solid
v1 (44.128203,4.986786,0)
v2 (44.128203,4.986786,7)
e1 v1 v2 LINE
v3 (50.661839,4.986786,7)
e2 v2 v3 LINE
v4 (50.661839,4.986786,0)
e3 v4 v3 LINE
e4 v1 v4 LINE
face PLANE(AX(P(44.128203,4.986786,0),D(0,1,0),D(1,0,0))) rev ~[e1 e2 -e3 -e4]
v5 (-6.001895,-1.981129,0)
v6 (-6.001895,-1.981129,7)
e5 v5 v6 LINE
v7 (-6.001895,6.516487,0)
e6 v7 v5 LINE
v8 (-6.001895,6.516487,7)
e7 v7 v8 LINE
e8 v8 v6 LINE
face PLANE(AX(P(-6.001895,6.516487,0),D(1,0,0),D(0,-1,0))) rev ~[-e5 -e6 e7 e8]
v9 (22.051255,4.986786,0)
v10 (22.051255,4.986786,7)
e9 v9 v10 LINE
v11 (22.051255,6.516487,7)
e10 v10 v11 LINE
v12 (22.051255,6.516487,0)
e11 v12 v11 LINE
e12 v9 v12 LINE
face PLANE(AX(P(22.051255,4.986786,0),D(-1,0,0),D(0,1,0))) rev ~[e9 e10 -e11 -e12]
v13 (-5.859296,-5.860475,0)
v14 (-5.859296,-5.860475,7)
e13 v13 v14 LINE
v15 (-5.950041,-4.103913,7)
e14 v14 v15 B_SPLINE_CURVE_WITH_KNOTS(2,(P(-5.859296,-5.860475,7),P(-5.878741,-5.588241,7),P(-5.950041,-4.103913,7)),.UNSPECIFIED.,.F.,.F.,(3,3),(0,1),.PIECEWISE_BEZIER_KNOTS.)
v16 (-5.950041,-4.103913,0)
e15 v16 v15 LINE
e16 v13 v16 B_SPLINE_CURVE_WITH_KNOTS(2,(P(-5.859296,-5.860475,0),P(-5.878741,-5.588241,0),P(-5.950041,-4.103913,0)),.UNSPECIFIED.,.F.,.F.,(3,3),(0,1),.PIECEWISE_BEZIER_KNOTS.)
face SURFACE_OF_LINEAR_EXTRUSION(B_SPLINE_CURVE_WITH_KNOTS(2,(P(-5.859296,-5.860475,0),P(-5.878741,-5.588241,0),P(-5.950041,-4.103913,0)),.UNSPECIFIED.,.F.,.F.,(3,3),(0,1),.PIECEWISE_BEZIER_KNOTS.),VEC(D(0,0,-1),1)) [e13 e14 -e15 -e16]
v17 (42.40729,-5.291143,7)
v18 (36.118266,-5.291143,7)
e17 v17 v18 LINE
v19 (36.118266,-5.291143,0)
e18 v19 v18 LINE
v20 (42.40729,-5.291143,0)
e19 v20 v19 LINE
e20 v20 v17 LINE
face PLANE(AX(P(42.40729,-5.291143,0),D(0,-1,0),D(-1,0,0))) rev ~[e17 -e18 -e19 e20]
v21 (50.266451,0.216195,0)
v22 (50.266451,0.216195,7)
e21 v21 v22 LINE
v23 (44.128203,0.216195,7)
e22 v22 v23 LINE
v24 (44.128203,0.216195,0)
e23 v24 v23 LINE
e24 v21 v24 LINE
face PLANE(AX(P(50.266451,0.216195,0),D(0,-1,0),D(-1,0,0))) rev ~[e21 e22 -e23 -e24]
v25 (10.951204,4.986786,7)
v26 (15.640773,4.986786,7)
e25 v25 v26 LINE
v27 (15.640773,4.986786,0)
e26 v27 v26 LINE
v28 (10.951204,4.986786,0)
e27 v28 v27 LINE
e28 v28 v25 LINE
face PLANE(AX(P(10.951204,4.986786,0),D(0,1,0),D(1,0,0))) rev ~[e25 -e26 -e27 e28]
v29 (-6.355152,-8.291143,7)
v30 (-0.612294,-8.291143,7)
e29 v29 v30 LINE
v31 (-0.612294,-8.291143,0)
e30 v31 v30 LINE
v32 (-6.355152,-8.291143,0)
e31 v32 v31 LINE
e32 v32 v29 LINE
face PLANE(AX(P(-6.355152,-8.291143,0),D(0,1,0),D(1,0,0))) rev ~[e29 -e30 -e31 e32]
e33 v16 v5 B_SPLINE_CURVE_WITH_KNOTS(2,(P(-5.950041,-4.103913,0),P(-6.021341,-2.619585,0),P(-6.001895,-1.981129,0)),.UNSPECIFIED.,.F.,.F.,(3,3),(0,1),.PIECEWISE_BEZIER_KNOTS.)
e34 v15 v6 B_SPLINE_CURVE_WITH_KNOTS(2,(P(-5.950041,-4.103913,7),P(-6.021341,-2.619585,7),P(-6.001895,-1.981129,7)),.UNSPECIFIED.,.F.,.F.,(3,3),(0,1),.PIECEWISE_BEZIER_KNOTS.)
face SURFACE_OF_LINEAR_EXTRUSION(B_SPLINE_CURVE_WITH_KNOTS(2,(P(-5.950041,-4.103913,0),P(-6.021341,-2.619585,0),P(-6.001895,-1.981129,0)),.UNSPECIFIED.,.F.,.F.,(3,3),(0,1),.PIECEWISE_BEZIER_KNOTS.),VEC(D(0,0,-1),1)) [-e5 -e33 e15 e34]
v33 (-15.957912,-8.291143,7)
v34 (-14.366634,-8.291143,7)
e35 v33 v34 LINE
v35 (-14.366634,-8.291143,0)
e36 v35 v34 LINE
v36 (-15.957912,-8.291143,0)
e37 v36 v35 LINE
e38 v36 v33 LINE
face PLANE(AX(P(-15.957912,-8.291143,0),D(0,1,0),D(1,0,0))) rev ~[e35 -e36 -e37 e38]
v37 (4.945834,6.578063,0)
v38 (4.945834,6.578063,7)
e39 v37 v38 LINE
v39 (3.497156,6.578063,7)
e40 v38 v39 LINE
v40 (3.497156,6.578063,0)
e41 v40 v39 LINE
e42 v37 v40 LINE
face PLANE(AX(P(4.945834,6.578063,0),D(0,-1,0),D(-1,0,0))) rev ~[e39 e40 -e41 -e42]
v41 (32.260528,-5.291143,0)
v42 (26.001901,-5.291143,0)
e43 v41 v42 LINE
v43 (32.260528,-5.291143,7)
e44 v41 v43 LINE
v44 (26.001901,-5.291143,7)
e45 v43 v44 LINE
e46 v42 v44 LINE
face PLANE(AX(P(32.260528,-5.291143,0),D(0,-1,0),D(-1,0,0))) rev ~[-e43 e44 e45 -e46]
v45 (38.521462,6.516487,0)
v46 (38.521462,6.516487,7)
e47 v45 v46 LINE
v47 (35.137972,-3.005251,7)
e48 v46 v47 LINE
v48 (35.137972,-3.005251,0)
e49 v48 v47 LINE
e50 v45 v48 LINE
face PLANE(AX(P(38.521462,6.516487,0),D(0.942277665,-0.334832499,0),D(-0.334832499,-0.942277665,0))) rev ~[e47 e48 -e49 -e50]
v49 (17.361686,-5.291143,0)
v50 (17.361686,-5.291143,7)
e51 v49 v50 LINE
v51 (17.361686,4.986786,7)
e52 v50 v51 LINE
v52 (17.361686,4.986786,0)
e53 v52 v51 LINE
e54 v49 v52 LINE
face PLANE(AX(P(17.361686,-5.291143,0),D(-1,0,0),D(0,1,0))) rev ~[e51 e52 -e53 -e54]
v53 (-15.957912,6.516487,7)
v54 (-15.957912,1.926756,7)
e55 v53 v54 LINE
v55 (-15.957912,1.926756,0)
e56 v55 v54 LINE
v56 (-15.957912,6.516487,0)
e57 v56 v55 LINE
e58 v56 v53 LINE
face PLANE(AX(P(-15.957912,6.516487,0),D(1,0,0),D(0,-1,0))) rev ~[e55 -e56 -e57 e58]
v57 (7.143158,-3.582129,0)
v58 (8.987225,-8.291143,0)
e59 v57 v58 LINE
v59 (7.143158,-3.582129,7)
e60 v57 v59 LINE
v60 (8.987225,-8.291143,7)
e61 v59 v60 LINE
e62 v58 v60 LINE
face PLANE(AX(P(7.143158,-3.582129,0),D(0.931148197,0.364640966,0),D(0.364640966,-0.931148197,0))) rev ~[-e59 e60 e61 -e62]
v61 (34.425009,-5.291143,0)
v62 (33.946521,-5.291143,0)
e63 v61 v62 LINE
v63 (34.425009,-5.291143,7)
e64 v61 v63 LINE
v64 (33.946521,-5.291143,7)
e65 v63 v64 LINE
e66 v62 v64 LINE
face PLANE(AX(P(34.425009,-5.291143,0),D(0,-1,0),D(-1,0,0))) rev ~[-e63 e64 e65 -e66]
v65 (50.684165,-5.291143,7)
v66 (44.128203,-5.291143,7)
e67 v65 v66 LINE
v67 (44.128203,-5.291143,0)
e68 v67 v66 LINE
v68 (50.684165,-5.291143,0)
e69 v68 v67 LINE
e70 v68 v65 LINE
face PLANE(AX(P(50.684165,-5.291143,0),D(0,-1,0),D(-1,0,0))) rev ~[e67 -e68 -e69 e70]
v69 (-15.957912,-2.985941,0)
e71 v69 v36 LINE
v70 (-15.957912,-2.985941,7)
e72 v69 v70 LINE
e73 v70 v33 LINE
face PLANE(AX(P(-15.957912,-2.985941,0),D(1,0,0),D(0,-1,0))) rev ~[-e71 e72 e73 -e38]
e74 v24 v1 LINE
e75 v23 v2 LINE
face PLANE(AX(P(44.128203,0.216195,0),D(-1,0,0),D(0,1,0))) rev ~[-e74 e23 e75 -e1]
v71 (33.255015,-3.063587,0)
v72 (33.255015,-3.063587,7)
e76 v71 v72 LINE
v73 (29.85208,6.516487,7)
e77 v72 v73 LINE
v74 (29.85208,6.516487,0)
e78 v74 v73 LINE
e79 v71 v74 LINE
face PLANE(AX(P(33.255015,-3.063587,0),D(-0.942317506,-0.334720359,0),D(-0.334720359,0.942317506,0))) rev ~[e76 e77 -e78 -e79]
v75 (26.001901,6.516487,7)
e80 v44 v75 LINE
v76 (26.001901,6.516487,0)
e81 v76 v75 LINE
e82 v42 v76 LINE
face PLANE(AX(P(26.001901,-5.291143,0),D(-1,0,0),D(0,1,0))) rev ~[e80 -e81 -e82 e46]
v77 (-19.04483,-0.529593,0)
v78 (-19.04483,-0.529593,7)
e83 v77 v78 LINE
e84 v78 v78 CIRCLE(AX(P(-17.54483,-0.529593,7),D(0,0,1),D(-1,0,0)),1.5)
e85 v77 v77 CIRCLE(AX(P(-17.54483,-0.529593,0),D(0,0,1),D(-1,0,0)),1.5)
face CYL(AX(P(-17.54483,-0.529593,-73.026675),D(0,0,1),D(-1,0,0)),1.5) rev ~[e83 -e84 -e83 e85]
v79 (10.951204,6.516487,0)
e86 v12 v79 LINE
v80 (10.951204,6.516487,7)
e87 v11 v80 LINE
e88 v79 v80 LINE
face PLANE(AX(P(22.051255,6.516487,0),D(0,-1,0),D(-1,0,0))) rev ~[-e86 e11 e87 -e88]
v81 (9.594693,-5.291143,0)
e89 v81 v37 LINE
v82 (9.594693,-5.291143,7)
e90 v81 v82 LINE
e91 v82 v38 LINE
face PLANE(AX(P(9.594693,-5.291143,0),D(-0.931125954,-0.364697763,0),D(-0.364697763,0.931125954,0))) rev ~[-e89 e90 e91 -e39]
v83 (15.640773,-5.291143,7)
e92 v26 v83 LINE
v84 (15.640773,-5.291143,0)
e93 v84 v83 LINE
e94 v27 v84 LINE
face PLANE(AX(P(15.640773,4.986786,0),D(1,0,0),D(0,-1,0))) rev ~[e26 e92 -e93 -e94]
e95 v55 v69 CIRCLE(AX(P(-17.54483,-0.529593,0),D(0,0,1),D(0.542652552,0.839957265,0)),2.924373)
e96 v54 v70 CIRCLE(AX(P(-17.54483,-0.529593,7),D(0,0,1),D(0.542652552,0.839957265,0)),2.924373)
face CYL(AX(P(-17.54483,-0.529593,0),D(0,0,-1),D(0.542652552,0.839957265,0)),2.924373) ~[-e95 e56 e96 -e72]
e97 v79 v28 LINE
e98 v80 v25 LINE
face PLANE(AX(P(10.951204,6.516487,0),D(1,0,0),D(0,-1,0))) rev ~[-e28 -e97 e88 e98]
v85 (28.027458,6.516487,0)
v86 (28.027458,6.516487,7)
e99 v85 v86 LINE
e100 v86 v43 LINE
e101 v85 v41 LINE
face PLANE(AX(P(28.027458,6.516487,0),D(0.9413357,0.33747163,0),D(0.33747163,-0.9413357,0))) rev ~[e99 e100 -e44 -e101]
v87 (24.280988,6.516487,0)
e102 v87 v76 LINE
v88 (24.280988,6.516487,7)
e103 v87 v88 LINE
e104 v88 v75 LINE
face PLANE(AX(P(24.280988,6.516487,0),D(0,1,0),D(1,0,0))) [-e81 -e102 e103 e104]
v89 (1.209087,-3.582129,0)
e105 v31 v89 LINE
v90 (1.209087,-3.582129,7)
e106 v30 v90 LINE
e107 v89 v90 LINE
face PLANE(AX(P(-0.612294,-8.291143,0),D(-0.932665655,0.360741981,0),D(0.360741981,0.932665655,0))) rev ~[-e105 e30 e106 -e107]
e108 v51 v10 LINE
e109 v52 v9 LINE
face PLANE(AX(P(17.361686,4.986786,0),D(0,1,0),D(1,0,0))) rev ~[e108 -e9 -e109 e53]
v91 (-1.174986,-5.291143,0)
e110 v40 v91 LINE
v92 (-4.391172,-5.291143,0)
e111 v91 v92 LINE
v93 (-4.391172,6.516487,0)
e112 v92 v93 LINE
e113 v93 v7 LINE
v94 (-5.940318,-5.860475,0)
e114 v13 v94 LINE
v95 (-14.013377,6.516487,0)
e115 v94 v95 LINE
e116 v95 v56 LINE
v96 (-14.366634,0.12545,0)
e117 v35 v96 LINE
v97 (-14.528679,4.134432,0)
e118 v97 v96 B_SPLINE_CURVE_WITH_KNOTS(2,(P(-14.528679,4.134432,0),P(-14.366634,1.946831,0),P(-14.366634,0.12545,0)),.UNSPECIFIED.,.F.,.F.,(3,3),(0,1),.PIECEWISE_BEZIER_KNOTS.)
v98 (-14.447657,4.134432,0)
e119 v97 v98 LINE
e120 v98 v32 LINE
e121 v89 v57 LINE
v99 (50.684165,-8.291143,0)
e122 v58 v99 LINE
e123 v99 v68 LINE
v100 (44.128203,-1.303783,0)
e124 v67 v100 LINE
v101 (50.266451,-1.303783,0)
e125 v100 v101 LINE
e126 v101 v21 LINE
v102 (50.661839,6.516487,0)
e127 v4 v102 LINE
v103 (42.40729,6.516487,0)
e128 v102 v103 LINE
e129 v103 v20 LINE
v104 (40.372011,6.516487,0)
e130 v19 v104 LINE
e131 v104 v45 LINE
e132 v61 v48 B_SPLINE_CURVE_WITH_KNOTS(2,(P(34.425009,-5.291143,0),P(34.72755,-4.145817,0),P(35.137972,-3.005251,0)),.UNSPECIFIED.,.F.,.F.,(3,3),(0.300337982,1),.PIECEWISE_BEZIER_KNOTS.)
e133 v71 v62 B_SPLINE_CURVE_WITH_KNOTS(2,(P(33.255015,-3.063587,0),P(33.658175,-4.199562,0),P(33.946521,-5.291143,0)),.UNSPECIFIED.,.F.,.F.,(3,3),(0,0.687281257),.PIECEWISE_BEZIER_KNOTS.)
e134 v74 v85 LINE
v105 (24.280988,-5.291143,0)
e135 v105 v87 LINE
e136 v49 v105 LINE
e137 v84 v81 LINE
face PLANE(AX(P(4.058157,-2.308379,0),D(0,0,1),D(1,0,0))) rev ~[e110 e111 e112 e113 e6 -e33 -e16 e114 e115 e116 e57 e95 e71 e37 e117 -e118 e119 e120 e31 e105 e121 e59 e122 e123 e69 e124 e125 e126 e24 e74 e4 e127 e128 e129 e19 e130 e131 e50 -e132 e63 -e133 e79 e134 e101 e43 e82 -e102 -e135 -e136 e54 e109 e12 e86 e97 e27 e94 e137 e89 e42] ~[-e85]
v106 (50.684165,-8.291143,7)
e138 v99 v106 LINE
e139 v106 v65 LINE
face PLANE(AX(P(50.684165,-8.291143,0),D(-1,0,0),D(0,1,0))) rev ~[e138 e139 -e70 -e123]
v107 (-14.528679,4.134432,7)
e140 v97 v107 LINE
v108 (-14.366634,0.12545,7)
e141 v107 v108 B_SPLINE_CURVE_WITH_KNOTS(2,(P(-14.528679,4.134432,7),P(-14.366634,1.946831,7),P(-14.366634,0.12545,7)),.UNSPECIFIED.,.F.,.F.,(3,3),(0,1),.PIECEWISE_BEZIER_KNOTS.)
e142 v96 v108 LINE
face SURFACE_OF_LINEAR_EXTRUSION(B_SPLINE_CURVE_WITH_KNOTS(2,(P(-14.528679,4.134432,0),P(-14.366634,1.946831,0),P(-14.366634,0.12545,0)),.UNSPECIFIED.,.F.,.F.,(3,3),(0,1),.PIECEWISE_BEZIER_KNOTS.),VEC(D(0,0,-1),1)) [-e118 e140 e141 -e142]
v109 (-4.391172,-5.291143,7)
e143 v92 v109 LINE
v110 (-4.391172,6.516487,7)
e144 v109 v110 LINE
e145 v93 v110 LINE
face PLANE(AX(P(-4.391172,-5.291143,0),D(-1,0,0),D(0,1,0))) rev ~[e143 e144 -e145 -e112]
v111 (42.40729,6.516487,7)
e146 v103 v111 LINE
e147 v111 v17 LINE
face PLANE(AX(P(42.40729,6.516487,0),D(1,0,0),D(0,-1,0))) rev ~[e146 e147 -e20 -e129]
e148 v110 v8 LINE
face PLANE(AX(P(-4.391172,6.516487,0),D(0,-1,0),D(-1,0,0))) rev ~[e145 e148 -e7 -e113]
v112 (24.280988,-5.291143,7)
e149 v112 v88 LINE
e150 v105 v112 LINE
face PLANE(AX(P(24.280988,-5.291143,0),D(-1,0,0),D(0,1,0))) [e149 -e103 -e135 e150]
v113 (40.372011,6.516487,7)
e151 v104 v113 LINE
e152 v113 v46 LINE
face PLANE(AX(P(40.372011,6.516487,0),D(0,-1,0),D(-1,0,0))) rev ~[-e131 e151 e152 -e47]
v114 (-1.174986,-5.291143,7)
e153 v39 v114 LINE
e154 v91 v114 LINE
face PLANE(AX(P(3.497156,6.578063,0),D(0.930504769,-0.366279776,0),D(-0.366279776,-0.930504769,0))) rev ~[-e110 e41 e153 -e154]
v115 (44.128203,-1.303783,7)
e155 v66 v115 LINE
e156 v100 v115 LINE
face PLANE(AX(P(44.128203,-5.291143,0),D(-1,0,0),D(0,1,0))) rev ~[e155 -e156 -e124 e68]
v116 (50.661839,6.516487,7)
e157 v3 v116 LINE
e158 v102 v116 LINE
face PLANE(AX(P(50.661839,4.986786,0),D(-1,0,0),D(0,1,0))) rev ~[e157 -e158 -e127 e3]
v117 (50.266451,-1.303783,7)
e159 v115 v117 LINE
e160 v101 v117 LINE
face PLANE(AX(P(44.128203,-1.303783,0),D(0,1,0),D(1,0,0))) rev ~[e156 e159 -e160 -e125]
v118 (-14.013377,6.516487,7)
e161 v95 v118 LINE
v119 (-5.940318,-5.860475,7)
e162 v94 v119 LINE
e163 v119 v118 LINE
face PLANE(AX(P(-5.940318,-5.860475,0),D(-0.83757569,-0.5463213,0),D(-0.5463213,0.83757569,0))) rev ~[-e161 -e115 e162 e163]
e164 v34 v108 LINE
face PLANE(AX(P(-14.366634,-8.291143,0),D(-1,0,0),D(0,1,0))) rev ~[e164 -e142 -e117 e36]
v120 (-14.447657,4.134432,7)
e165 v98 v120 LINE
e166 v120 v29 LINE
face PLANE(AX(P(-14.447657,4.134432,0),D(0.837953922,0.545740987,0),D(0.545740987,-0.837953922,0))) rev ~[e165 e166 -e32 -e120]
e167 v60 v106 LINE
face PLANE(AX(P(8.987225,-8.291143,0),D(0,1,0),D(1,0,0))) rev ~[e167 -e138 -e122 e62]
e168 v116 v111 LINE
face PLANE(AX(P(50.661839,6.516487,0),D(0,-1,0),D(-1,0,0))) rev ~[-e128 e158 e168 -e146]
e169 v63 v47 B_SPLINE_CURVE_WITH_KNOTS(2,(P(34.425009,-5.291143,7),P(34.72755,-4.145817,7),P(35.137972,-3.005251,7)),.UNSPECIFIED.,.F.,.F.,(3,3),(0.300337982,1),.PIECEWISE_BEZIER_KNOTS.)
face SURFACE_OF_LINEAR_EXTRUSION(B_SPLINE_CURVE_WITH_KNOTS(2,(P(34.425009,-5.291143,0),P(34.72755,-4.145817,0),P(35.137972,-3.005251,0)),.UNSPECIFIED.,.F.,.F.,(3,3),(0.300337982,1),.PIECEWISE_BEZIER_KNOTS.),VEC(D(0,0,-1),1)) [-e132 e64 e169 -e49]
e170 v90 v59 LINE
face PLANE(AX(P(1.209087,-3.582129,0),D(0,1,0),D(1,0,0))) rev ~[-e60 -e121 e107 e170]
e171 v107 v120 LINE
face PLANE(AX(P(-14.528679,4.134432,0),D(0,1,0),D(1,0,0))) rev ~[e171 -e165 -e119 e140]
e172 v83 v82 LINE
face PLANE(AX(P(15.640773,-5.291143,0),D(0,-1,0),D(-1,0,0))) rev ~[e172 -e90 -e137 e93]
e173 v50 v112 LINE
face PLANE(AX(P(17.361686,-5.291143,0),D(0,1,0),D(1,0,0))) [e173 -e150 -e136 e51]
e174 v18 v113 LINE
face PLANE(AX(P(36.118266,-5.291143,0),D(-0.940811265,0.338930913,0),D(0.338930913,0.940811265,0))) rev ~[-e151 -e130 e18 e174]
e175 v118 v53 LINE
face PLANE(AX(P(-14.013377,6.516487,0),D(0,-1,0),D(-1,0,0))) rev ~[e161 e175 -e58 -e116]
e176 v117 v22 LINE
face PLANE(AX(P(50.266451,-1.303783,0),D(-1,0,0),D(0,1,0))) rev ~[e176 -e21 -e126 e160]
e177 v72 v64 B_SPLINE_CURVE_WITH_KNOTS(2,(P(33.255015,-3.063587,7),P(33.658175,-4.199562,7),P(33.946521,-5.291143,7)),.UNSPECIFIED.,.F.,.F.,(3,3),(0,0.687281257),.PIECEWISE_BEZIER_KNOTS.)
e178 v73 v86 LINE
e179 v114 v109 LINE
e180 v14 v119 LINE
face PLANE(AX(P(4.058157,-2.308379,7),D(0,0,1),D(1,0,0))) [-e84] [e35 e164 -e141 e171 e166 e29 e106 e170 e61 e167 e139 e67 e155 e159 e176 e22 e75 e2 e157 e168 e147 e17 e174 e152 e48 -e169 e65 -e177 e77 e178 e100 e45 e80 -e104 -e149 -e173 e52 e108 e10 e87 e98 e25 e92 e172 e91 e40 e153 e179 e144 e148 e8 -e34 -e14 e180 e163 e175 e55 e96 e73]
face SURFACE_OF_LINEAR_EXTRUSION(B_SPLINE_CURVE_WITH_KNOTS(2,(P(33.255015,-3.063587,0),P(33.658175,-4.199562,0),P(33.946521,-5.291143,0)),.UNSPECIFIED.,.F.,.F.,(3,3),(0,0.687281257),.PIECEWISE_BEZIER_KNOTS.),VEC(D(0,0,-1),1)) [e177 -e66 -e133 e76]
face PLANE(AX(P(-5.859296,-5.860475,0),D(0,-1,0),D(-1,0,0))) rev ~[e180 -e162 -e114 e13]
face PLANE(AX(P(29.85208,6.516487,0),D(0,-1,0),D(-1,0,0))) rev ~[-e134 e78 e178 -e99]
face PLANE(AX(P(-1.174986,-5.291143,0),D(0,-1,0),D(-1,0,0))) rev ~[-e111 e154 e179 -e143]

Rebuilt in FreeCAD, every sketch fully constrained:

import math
import FreeCAD as App
import Part
import Sketcher
from FreeCAD import Vector
Q = App.Units.Quantity

doc = App.newDocument("Part")
body = doc.addObject("PartDesign::Body", "Body")

# Sketch on XY plane
sketch1 = doc.addObject("Sketcher::SketchObject", "Sketch")
body.addObject(sketch1)
sketch1.AttachmentSupport = (doc.XY_Plane, [""])
sketch1.MapMode = "FlatFace"
sketch1.addGeometry([
    Part.LineSegment(Vector(-0.612294, -8.291143, 0), Vector(1.209087, -3.582129, 0)),  # 0
    Part.LineSegment(Vector(1.209087, -3.582129, 0), Vector(7.143158, -3.582129, 0)),  # 1
    Part.LineSegment(Vector(7.143158, -3.582129, 0), Vector(8.987225, -8.291143, 0)),  # 2
    Part.LineSegment(Vector(8.987225, -8.291143, 0), Vector(50.684165, -8.291143, 0)),  # 3
    Part.LineSegment(Vector(50.684165, -8.291143, 0), Vector(50.684165, -5.291143, 0)),  # 4
    Part.LineSegment(Vector(50.684165, -5.291143, 0), Vector(44.128203, -5.291143, 0)),  # 5
    Part.LineSegment(Vector(44.128203, -5.291143, 0), Vector(44.128203, -1.303783, 0)),  # 6
    Part.LineSegment(Vector(44.128203, -1.303783, 0), Vector(50.266451, -1.303783, 0)),  # 7
    Part.LineSegment(Vector(50.266451, -1.303783, 0), Vector(50.266451, 0.216195, 0)),  # 8
    Part.LineSegment(Vector(50.266451, 0.216195, 0), Vector(44.128203, 0.216195, 0)),  # 9
    Part.LineSegment(Vector(44.128203, 0.216195, 0), Vector(44.128203, 4.986786, 0)),  # 10
    Part.LineSegment(Vector(44.128203, 4.986786, 0), Vector(50.661839, 4.986786, 0)),  # 11
    Part.LineSegment(Vector(50.661839, 4.986786, 0), Vector(50.661839, 6.516487, 0)),  # 12
    Part.LineSegment(Vector(50.661839, 6.516487, 0), Vector(42.40729, 6.516487, 0)),  # 13
    Part.LineSegment(Vector(42.40729, 6.516487, 0), Vector(42.40729, -5.291143, 0)),  # 14
    Part.LineSegment(Vector(42.40729, -5.291143, 0), Vector(36.118266, -5.291143, 0)),  # 15
    Part.LineSegment(Vector(36.118266, -5.291143, 0), Vector(40.372011, 6.516487, 0)),  # 16
    Part.LineSegment(Vector(40.372011, 6.516487, 0), Vector(38.521462, 6.516487, 0)),  # 17
    Part.LineSegment(Vector(38.521462, 6.516487, 0), Vector(35.137972, -3.005251, 0)),  # 18
    Part.BSplineCurve([Vector(34.425009, -5.291143, 0), Vector(34.72755, -4.145817, 0), Vector(35.137972, -3.005251, 0)], [3, 3], [0.300337982, 1], False, 2, [1, 1, 1], False),  # 19
    Part.LineSegment(Vector(34.425009, -5.291143, 0), Vector(33.946521, -5.291143, 0)),  # 20
    Part.BSplineCurve([Vector(33.255015, -3.063587, 0), Vector(33.658175, -4.199562, 0), Vector(33.946521, -5.291143, 0)], [3, 3], [0, 0.687281257], False, 2, [1, 1, 1], False),  # 21
    Part.LineSegment(Vector(33.255015, -3.063587, 0), Vector(29.85208, 6.516487, 0)),  # 22
    Part.LineSegment(Vector(29.85208, 6.516487, 0), Vector(28.027458, 6.516487, 0)),  # 23
    Part.LineSegment(Vector(28.027458, 6.516487, 0), Vector(32.260528, -5.291143, 0)),  # 24
    Part.LineSegment(Vector(32.260528, -5.291143, 0), Vector(26.001901, -5.291143, 0)),  # 25
    Part.LineSegment(Vector(26.001901, -5.291143, 0), Vector(26.001901, 6.516487, 0)),  # 26
    Part.LineSegment(Vector(26.001901, 6.516487, 0), Vector(24.280988, 6.516487, 0)),  # 27
    Part.LineSegment(Vector(24.280988, 6.516487, 0), Vector(24.280988, -5.291143, 0)),  # 28
    Part.LineSegment(Vector(24.280988, -5.291143, 0), Vector(17.361686, -5.291143, 0)),  # 29
    Part.LineSegment(Vector(17.361686, -5.291143, 0), Vector(17.361686, 4.986786, 0)),  # 30
    Part.LineSegment(Vector(17.361686, 4.986786, 0), Vector(22.051255, 4.986786, 0)),  # 31
    Part.LineSegment(Vector(22.051255, 4.986786, 0), Vector(22.051255, 6.516487, 0)),  # 32
    Part.LineSegment(Vector(22.051255, 6.516487, 0), Vector(10.951204, 6.516487, 0)),  # 33
    Part.LineSegment(Vector(10.951204, 6.516487, 0), Vector(10.951204, 4.986786, 0)),  # 34
    Part.LineSegment(Vector(10.951204, 4.986786, 0), Vector(15.640773, 4.986786, 0)),  # 35
    Part.LineSegment(Vector(15.640773, 4.986786, 0), Vector(15.640773, -5.291143, 0)),  # 36
    Part.LineSegment(Vector(15.640773, -5.291143, 0), Vector(9.594693, -5.291143, 0)),  # 37
    Part.LineSegment(Vector(9.594693, -5.291143, 0), Vector(4.945834, 6.578063, 0)),  # 38
    Part.LineSegment(Vector(4.945834, 6.578063, 0), Vector(3.497156, 6.578063, 0)),  # 39
    Part.LineSegment(Vector(3.497156, 6.578063, 0), Vector(-1.174986, -5.291143, 0)),  # 40
    Part.LineSegment(Vector(-1.174986, -5.291143, 0), Vector(-4.391172, -5.291143, 0)),  # 41
    Part.LineSegment(Vector(-4.391172, -5.291143, 0), Vector(-4.391172, 6.516487, 0)),  # 42
    Part.LineSegment(Vector(-4.391172, 6.516487, 0), Vector(-6.001895, 6.516487, 0)),  # 43
    Part.LineSegment(Vector(-6.001895, 6.516487, 0), Vector(-6.001895, -1.981129, 0)),  # 44
    Part.BSplineCurve([Vector(-5.950041, -4.103913, 0), Vector(-6.021341, -2.619585, 0), Vector(-6.001895, -1.981129, 0)], [3, 3], [0, 1], False, 2, [1, 1, 1], False),  # 45
    Part.BSplineCurve([Vector(-5.859296, -5.860475, 0), Vector(-5.878741, -5.588241, 0), Vector(-5.950041, -4.103913, 0)], [3, 3], [0, 1], False, 2, [1, 1, 1], False),  # 46
    Part.LineSegment(Vector(-5.859296, -5.860475, 0), Vector(-5.940318, -5.860475, 0)),  # 47
    Part.LineSegment(Vector(-5.940318, -5.860475, 0), Vector(-14.013377, 6.516487, 0)),  # 48
    Part.LineSegment(Vector(-14.013377, 6.516487, 0), Vector(-15.957912, 6.516487, 0)),  # 49
    Part.LineSegment(Vector(-15.957912, 6.516487, 0), Vector(-15.957912, 1.926756, 0)),  # 50
    Part.ArcOfCircle(Part.Circle(Vector(-17.54483, -0.529593, 0), Vector(0, 0, 1), 2.924373), math.radians(57.135607), math.radians(302.864393)),  # 51
    Part.LineSegment(Vector(-15.957912, -2.985941, 0), Vector(-15.957912, -8.291143, 0)),  # 52
    Part.LineSegment(Vector(-15.957912, -8.291143, 0), Vector(-14.366634, -8.291143, 0)),  # 53
    Part.LineSegment(Vector(-14.366634, -8.291143, 0), Vector(-14.366634, 0.12545, 0)),  # 54
    Part.BSplineCurve([Vector(-14.528679, 4.134432, 0), Vector(-14.366634, 1.946831, 0), Vector(-14.366634, 0.12545, 0)], [3, 3], [0, 1], False, 2, [1, 1, 1], False),  # 55
    Part.LineSegment(Vector(-14.528679, 4.134432, 0), Vector(-14.447657, 4.134432, 0)),  # 56
    Part.LineSegment(Vector(-14.447657, 4.134432, 0), Vector(-6.355152, -8.291143, 0)),  # 57
    Part.LineSegment(Vector(-6.355152, -8.291143, 0), Vector(-0.612294, -8.291143, 0)),  # 58
], False)
sketch1.addConstraint([
    Sketcher.Constraint("Block", 19),
    Sketcher.Constraint("Block", 21),
    Sketcher.Constraint("Block", 45),
    Sketcher.Constraint("Block", 46),
    Sketcher.Constraint("Block", 55),
    Sketcher.Constraint("Coincident", 0, 2, 1, 1),
    Sketcher.Constraint("Coincident", 1, 2, 2, 1),
    Sketcher.Constraint("Coincident", 2, 2, 3, 1),
    Sketcher.Constraint("Coincident", 3, 2, 4, 1),
    Sketcher.Constraint("Coincident", 4, 2, 5, 1),
    Sketcher.Constraint("Coincident", 5, 2, 6, 1),
    Sketcher.Constraint("Coincident", 6, 2, 7, 1),
    Sketcher.Constraint("Coincident", 7, 2, 8, 1),
    Sketcher.Constraint("Coincident", 8, 2, 9, 1),
    Sketcher.Constraint("Coincident", 9, 2, 10, 1),
    Sketcher.Constraint("Coincident", 10, 2, 11, 1),
    Sketcher.Constraint("Coincident", 11, 2, 12, 1),
    Sketcher.Constraint("Coincident", 12, 2, 13, 1),
    Sketcher.Constraint("Coincident", 13, 2, 14, 1),
    Sketcher.Constraint("Coincident", 14, 2, 15, 1),
    Sketcher.Constraint("Coincident", 15, 2, 16, 1),
    Sketcher.Constraint("Coincident", 16, 2, 17, 1),
    Sketcher.Constraint("Coincident", 17, 2, 18, 1),
    Sketcher.Constraint("Coincident", 18, 2, 19, 2),
    Sketcher.Constraint("Coincident", 19, 1, 20, 1),
    Sketcher.Constraint("Coincident", 20, 2, 21, 2),
    Sketcher.Constraint("Coincident", 21, 1, 22, 1),
    Sketcher.Constraint("Coincident", 22, 2, 23, 1),
    Sketcher.Constraint("Coincident", 23, 2, 24, 1),
    Sketcher.Constraint("Coincident", 24, 2, 25, 1),
    Sketcher.Constraint("Coincident", 25, 2, 26, 1),
    Sketcher.Constraint("Coincident", 26, 2, 27, 1),
    Sketcher.Constraint("Coincident", 27, 2, 28, 1),
    Sketcher.Constraint("Coincident", 28, 2, 29, 1),
    Sketcher.Constraint("Coincident", 29, 2, 30, 1),
    Sketcher.Constraint("Coincident", 30, 2, 31, 1),
    Sketcher.Constraint("Coincident", 31, 2, 32, 1),
    Sketcher.Constraint("Coincident", 32, 2, 33, 1),
    Sketcher.Constraint("Coincident", 33, 2, 34, 1),
    Sketcher.Constraint("Coincident", 34, 2, 35, 1),
    Sketcher.Constraint("Coincident", 35, 2, 36, 1),
    Sketcher.Constraint("Coincident", 36, 2, 37, 1),
    Sketcher.Constraint("Coincident", 37, 2, 38, 1),
    Sketcher.Constraint("Coincident", 38, 2, 39, 1),
    Sketcher.Constraint("Coincident", 39, 2, 40, 1),
    Sketcher.Constraint("Coincident", 40, 2, 41, 1),
    Sketcher.Constraint("Coincident", 41, 2, 42, 1),
    Sketcher.Constraint("Coincident", 42, 2, 43, 1),
    Sketcher.Constraint("Coincident", 43, 2, 44, 1),
    Sketcher.Constraint("Coincident", 44, 2, 45, 2),
    Sketcher.Constraint("Coincident", 46, 1, 47, 1),
    Sketcher.Constraint("Coincident", 47, 2, 48, 1),
    Sketcher.Constraint("Coincident", 48, 2, 49, 1),
    Sketcher.Constraint("Coincident", 49, 2, 50, 1),
    Sketcher.Constraint("Coincident", 50, 2, 51, 1),
    Sketcher.Constraint("Coincident", 51, 2, 52, 1),
    Sketcher.Constraint("Coincident", 52, 2, 53, 1),
    Sketcher.Constraint("Coincident", 53, 2, 54, 1),
    Sketcher.Constraint("Coincident", 54, 2, 55, 2),
    Sketcher.Constraint("Coincident", 55, 1, 56, 1),
    Sketcher.Constraint("Coincident", 56, 2, 57, 1),
    Sketcher.Constraint("Coincident", 57, 2, 58, 1),
    Sketcher.Constraint("Coincident", 58, 2, 0, 1),
    Sketcher.Constraint("Horizontal", 1),
    Sketcher.Constraint("Horizontal", 3),
    Sketcher.Constraint("Vertical", 4),
    Sketcher.Constraint("Horizontal", 5),
    Sketcher.Constraint("Vertical", 6),
    Sketcher.Constraint("Horizontal", 7),
    Sketcher.Constraint("Vertical", 8),
    Sketcher.Constraint("Horizontal", 9),
    Sketcher.Constraint("Vertical", 10),
    Sketcher.Constraint("Horizontal", 11),
    Sketcher.Constraint("Vertical", 12),
    Sketcher.Constraint("Horizontal", 13),
    Sketcher.Constraint("Vertical", 14),
    Sketcher.Constraint("Horizontal", 15),
    Sketcher.Constraint("Horizontal", 17),
    Sketcher.Constraint("Horizontal", 23),
    Sketcher.Constraint("Horizontal", 25),
    Sketcher.Constraint("Vertical", 26),
    Sketcher.Constraint("Horizontal", 27),
    Sketcher.Constraint("Vertical", 28),
    Sketcher.Constraint("Horizontal", 29),
    Sketcher.Constraint("Vertical", 30),
    Sketcher.Constraint("Horizontal", 31),
    Sketcher.Constraint("Vertical", 32),
    Sketcher.Constraint("Horizontal", 33),
    Sketcher.Constraint("Vertical", 34),
    Sketcher.Constraint("Horizontal", 35),
    Sketcher.Constraint("Vertical", 36),
    Sketcher.Constraint("Horizontal", 37),
    Sketcher.Constraint("Horizontal", 39),
    Sketcher.Constraint("Horizontal", 41),
    Sketcher.Constraint("Vertical", 42),
    Sketcher.Constraint("Horizontal", 43),
    Sketcher.Constraint("Vertical", 44),
    Sketcher.Constraint("Horizontal", 47),
    Sketcher.Constraint("Horizontal", 49),
    Sketcher.Constraint("Vertical", 50),
    Sketcher.Constraint("Vertical", 52),
    Sketcher.Constraint("Horizontal", 53),
    Sketcher.Constraint("Vertical", 54),
    Sketcher.Constraint("Horizontal", 56),
    Sketcher.Constraint("Horizontal", 58),
    Sketcher.Constraint("Horizontal", 5, 2, 14, 2),
    Sketcher.Constraint("Horizontal", 13, 2, 16, 2),
    Sketcher.Constraint("Horizontal", 15, 2, 20, 2),
    Sketcher.Constraint("Horizontal", 17, 2, 22, 2),
    Sketcher.Constraint("Horizontal", 20, 2, 24, 2),
    Sketcher.Constraint("Horizontal", 23, 2, 26, 2),
    Sketcher.Constraint("Horizontal", 25, 2, 28, 2),
    Sketcher.Constraint("Horizontal", 11, 2, 30, 2),
    Sketcher.Constraint("Horizontal", 27, 2, 32, 2),
    Sketcher.Constraint("Horizontal", 31, 2, 34, 2),
    Sketcher.Constraint("Horizontal", 29, 2, 36, 2),
    Sketcher.Constraint("Horizontal", 37, 2, 40, 2),
    Sketcher.Constraint("Horizontal", 33, 2, 42, 2),
    Sketcher.Constraint("Horizontal", 43, 2, 48, 2),
    Sketcher.Constraint("Horizontal", 3, 2, 52, 2),
    Sketcher.Constraint("Horizontal", 53, 2, 57, 2),
    Sketcher.Constraint("Vertical", 6, 2, 9, 2),
    Sketcher.Constraint("Vertical", 50, 2, 51, 2),
    Sketcher.Constraint("Equal", 31, 35),
    Sketcher.Constraint("Equal", 47, 56),
    Sketcher.Constraint("DistanceY", 4, 1, 4, 2, Q("3 mm")),
    Sketcher.Constraint("DistanceX", 29, 2, 29, 1, Q("6.919302 mm")),
    Sketcher.Constraint("DistanceY", 12, 1, 12, 2, Q("1.5297 mm")),
    Sketcher.Constraint("Radius", 51, Q("2.924373 mm")),
    Sketcher.Constraint("DistanceY", 0, 2, 44, 2, Q("1.601 mm")),
    Sketcher.Constraint("DistanceX", 1, 1, 1, 2, Q("5.934071 mm")),
    Sketcher.Constraint("DistanceX", 3, 1, 3, 2, Q("41.696941 mm")),
    Sketcher.Constraint("DistanceX", 5, 2, 5, 1, Q("6.555962 mm")),
    Sketcher.Constraint("DistanceX", 13, 2, 13, 1, Q("8.254549 mm")),
    Sketcher.Constraint("DistanceX", 17, 2, 17, 1, Q("1.850549 mm")),
    Sketcher.Constraint("DistanceX", 23, 2, 23, 1, Q("1.824622 mm")),
    Sketcher.Constraint("DistanceX", 31, 1, 31, 2, Q("4.689569 mm")),
    Sketcher.Constraint("DistanceX", 33, 2, 33, 1, Q("11.100051 mm")),
    Sketcher.Constraint("DistanceX", 37, 2, 37, 1, Q("6.046081 mm")),
    Sketcher.Constraint("DistanceX", 39, 2, 39, 1, Q("1.448678 mm")),
    Sketcher.Constraint("DistanceX", 58, 1, 58, 2, Q("5.742858 mm")),
    Sketcher.Constraint("DistanceY", 6, 1, 6, 2, Q("3.987361 mm")),
    Sketcher.Constraint("DistanceY", 10, 1, 10, 2, Q("4.770591 mm")),
    Sketcher.Constraint("DistanceY", 14, 2, 14, 1, Q("11.80763 mm")),
    Sketcher.Constraint("DistanceY", 50, 2, 50, 1, Q("4.589731 mm")),
    Sketcher.Constraint("DistanceX", -1, 1, 25, 2, Q("26.001901 mm")),
    Sketcher.Constraint("Distance", 57, Q("14.828471 mm")),
    Sketcher.Constraint("DistanceX", 7, 1, 7, 2, Q("6.138247 mm")),
    Sketcher.Constraint("DistanceX", 11, 1, 11, 2, Q("6.533636 mm")),
    Sketcher.Constraint("DistanceX", 15, 2, 15, 1, Q("6.289024 mm")),
    Sketcher.Constraint("DistanceX", 25, 2, 25, 1, Q("6.258627 mm")),
    Sketcher.Constraint("DistanceX", 27, 2, 27, 1, Q("1.720913 mm")),
    Sketcher.Constraint("DistanceX", 41, 2, 41, 1, Q("3.216186 mm")),
    Sketcher.Constraint("DistanceX", 43, 2, 43, 1, Q("1.610723 mm")),
    Sketcher.Constraint("DistanceX", 47, 2, 47, 1, Q("0.081022 mm")),
    Sketcher.Constraint("DistanceX", 49, 2, 49, 1, Q("1.944534 mm")),
    Sketcher.Constraint("DistanceX", 53, 1, 53, 2, Q("1.591277 mm")),
    Sketcher.Constraint("DistanceY", 52, 2, 52, 1, Q("5.305202 mm")),
    Sketcher.Constraint("DistanceX", -1, 1, 7, 2, Q("50.266451 mm")),
    Sketcher.Constraint("DistanceX", -1, 1, 16, 2, Q("40.372011 mm")),
    Sketcher.Constraint("DistanceX", -1, 1, 22, 2, Q("29.85208 mm")),
    Sketcher.Constraint("DistanceX", 51, 3, 1, 2, Q("24.687988 mm")),
    Sketcher.Constraint("DistanceX", 38, 2, 33, 2, Q("6.005371 mm")),
    Sketcher.Constraint("Distance", 38, Q("12.747155 mm")),
])
pad1 = doc.addObject("PartDesign::Pad", "Pad")
body.addObject(pad1)
pad1.Profile = sketch1
pad1.Length = 7

# Sketch on XY plane
sketch2 = doc.addObject("Sketcher::SketchObject", "Sketch001")
body.addObject(sketch2)
sketch2.AttachmentSupport = (doc.XY_Plane, [""])
sketch2.MapMode = "FlatFace"
sketch2.addGeometry(Part.Circle(Vector(-17.5, -0.5, 0), Vector(0, 0, 1), 1.5), False)
sketch2.addConstraint([
    Sketcher.Constraint("Diameter", 0, Q("3 mm")),
    Sketcher.Constraint("DistanceX", 0, 3, -1, 1, Q("17.54483 mm")),
    Sketcher.Constraint("DistanceY", 0, 3, -1, 1, Q("0.529593 mm")),
])
doc.recompute()
hole = doc.addObject("PartDesign::Hole", "Hole")
body.addObject(hole)
hole.Profile = sketch2
hole.ThreadType = "None"
hole.Diameter = 3
hole.DepthType = "ThroughAll"
hole.Reversed = True

doc.recompute()
